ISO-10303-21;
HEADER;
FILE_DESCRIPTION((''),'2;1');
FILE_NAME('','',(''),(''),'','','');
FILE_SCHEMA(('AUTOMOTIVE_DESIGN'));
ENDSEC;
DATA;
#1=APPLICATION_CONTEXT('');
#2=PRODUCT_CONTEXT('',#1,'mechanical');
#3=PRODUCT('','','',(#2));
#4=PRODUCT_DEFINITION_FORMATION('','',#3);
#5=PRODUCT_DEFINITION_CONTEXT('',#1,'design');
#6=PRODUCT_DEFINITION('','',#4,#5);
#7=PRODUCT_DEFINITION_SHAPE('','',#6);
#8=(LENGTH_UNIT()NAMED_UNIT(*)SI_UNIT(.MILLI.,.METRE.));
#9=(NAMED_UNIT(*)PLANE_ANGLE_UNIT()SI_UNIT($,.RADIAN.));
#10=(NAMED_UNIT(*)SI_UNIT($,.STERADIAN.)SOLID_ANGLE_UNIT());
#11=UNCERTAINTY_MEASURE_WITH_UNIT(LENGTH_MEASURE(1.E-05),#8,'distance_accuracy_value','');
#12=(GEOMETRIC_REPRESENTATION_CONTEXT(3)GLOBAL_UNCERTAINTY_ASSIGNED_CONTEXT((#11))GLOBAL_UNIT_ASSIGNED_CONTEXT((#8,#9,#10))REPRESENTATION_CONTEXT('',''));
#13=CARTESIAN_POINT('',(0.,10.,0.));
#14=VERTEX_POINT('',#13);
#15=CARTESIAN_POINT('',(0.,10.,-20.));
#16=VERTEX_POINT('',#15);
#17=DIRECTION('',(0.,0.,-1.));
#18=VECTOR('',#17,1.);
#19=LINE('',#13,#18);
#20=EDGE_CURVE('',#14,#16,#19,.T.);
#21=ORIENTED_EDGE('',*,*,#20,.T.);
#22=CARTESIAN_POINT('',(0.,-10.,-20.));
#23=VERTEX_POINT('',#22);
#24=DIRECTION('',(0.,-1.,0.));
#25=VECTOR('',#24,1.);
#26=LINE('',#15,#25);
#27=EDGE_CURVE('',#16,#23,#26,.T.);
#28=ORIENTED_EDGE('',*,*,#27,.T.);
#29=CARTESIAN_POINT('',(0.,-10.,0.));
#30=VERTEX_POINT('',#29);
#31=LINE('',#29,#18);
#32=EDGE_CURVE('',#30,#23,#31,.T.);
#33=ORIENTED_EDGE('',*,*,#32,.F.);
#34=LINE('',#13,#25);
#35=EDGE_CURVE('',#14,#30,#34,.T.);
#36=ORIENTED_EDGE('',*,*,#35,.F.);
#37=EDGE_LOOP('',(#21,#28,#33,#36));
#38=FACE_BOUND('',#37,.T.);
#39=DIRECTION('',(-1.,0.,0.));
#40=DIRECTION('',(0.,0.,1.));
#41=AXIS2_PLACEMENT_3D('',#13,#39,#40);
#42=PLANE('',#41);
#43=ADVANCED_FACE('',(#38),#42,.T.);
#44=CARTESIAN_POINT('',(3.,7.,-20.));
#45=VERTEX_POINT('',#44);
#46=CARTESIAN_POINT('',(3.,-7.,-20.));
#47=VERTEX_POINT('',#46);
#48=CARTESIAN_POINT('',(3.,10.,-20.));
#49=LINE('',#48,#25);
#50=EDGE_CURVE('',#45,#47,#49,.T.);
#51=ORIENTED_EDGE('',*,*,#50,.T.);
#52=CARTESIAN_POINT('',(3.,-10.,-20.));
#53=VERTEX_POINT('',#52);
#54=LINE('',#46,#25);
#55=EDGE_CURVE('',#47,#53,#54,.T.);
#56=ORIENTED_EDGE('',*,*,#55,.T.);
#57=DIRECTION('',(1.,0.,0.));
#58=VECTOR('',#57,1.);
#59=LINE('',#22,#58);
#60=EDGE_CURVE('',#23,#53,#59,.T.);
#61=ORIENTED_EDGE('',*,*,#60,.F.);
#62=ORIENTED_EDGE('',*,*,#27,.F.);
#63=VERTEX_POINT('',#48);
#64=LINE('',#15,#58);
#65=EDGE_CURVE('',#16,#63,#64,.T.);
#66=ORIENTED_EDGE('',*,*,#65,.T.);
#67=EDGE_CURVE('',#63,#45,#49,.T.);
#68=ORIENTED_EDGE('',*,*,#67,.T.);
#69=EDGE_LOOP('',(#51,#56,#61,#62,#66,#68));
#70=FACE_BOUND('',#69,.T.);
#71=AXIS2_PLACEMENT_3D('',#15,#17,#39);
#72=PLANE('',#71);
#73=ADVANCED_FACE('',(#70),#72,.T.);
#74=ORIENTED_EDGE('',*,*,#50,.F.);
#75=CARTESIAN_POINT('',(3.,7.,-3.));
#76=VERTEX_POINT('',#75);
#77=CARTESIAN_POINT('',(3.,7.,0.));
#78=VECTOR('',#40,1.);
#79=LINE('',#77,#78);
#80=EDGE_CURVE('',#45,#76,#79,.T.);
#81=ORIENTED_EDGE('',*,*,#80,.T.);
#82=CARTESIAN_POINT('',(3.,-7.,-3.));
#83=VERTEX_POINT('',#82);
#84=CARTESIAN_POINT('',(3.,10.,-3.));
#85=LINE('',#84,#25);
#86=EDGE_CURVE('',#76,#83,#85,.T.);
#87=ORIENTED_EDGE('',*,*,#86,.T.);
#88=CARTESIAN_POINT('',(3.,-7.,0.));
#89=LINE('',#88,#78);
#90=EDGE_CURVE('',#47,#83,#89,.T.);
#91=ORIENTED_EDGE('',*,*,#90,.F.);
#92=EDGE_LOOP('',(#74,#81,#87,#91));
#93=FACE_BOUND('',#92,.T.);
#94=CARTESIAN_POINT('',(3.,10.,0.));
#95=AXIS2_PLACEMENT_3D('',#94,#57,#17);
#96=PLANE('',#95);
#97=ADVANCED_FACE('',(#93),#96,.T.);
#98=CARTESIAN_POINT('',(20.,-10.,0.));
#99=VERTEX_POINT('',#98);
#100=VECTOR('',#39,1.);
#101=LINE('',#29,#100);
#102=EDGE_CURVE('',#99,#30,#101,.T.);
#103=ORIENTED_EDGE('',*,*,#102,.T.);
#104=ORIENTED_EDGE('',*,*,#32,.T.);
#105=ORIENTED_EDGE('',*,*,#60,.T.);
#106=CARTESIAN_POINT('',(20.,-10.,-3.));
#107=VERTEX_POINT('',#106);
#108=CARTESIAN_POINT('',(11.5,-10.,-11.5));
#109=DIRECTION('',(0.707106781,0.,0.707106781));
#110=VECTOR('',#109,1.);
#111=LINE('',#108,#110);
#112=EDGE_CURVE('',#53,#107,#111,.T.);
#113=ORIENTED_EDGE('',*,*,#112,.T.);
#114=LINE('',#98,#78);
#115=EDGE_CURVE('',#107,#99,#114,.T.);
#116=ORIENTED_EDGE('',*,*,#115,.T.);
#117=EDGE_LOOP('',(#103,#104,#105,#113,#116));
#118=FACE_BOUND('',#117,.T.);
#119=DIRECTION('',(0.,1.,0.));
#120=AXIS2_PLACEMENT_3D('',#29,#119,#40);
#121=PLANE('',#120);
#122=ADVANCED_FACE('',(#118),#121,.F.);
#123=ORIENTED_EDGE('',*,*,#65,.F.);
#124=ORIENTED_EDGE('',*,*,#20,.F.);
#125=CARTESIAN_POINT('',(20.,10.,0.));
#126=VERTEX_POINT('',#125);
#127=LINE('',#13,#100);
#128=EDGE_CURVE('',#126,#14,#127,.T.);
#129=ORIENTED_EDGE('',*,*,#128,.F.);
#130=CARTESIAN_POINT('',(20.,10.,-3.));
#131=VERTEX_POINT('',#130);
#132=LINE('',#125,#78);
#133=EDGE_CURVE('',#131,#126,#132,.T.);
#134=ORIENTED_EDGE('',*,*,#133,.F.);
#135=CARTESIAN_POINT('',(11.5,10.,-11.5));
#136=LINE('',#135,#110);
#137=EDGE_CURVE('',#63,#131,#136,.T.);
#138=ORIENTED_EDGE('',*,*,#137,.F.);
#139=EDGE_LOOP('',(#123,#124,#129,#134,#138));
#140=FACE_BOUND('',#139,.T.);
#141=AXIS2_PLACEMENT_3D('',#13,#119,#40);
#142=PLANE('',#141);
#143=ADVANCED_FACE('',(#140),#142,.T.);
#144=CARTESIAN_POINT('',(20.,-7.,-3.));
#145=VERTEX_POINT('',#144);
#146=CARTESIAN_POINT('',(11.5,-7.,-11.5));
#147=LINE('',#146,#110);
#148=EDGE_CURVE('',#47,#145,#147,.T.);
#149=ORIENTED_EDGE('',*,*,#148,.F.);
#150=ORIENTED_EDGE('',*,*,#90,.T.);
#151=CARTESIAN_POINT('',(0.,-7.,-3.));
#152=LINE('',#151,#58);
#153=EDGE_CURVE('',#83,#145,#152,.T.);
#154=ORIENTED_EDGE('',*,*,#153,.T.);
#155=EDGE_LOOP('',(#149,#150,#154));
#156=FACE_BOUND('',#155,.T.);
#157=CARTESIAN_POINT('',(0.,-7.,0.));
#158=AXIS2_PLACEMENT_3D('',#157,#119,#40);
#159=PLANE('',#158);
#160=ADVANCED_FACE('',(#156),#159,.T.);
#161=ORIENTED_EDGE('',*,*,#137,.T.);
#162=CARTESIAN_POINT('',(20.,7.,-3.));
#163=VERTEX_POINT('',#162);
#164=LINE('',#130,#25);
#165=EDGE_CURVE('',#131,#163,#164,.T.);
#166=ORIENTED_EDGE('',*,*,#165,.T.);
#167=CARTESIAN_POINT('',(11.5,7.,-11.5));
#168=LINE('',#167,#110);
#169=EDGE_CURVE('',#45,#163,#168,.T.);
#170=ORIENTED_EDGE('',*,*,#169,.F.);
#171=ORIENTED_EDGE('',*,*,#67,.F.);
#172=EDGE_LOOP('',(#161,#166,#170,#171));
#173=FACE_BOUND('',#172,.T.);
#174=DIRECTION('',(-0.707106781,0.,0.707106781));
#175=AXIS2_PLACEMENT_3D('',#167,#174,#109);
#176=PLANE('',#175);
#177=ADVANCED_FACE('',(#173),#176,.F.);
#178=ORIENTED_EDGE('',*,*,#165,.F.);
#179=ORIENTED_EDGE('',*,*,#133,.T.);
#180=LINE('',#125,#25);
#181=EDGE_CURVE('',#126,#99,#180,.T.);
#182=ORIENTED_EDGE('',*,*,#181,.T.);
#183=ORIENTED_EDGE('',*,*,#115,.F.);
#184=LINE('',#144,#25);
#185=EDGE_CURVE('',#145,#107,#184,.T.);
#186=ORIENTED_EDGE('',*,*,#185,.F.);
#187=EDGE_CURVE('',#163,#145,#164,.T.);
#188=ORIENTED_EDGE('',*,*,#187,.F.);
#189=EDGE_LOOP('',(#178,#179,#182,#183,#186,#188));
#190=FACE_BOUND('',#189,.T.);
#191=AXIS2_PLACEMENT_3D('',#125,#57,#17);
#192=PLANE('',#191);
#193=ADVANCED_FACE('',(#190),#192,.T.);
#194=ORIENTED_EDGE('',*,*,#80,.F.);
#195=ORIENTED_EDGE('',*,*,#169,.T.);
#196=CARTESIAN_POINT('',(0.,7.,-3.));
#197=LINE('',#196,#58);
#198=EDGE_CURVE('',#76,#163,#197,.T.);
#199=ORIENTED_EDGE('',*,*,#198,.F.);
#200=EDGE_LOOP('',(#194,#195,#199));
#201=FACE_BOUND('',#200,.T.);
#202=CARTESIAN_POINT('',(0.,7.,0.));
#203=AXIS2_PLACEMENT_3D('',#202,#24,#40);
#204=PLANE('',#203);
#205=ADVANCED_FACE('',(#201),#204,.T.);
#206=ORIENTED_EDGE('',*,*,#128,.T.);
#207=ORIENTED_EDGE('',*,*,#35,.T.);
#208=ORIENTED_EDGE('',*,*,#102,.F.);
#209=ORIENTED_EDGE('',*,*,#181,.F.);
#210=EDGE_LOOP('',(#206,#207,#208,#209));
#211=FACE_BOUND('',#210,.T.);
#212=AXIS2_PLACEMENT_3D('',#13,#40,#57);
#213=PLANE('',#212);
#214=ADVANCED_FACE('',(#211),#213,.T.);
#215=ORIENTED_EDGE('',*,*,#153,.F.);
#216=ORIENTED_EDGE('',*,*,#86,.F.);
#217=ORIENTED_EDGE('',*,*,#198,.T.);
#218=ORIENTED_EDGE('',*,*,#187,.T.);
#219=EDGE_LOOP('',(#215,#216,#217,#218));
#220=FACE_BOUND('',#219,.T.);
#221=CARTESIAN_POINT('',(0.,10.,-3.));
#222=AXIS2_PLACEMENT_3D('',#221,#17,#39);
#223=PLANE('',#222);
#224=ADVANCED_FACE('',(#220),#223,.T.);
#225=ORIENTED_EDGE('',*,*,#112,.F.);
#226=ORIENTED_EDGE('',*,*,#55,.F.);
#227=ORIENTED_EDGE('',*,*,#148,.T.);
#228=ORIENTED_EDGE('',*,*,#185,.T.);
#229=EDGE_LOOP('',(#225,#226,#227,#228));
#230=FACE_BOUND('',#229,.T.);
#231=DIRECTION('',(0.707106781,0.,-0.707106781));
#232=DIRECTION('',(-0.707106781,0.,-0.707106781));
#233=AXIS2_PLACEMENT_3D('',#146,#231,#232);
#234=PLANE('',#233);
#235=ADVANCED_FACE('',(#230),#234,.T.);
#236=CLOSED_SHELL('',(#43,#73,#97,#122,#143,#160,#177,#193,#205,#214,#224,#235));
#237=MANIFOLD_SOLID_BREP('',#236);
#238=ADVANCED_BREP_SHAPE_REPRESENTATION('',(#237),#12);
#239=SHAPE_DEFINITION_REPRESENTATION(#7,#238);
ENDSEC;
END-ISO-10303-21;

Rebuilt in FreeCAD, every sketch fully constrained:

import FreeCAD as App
import Part
import Sketcher

V = App.Vector
Q = App.Units.Quantity

doc = App.newDocument("Part")
body = doc.addObject("PartDesign::Body", "Body")

sketch1 = body.newObject("Sketcher::SketchObject", "Sketch")
sketch1.AttachmentSupport = (doc.getObject("XZ_Plane"), [""])
sketch1.MapMode = "FlatFace"
sketch1.addGeometry([
    Part.LineSegment(V(0, 0, 0), V(20, 0, 0)),
    Part.LineSegment(V(20, 0, 0), V(20, -3, 0)),
    Part.LineSegment(V(20, -3, 0), V(3, -3, 0)),
    Part.LineSegment(V(3, -3, 0), V(3, -20, 0)),
    Part.LineSegment(V(3, -20, 0), V(0, -20, 0)),
    Part.LineSegment(V(0, -20, 0), V(0, 0, 0)),
], False)
sketch1.addConstraint([
    Sketcher.Constraint("Coincident", 0, 2, 1, 1),
    Sketcher.Constraint("Coincident", 1, 2, 2, 1),
    Sketcher.Constraint("Coincident", 2, 2, 3, 1),
    Sketcher.Constraint("Coincident", 3, 2, 4, 1),
    Sketcher.Constraint("Coincident", 4, 2, 5, 1),
    Sketcher.Constraint("Coincident", 5, 2, 0, 1),
    Sketcher.Constraint("Horizontal", 0),
    Sketcher.Constraint("Vertical", 1),
    Sketcher.Constraint("Horizontal", 2),
    Sketcher.Constraint("Vertical", 3),
    Sketcher.Constraint("Horizontal", 4),
    Sketcher.Constraint("Vertical", 5),
    Sketcher.Constraint("Coincident", 5, 2, -1, 1),
    Sketcher.Constraint("Equal", 4, 1),
    Sketcher.Constraint("Equal", 2, 3),
    Sketcher.Constraint("DistanceX", 0, 1, 0, 2, Q("20 mm")),
    Sketcher.Constraint("DistanceX", 2, 2, 2, 1, Q("17 mm")),
])
pad1 = body.newObject("PartDesign::Pad", "Pad")
pad1.Profile = sketch1
pad1.Length = 20
pad1.Midplane = True

sketch2 = body.newObject("Sketcher::SketchObject", "Sketch001")
sketch2.AttachmentSupport = (doc.getObject("XZ_Plane"), [""])
sketch2.MapMode = "FlatFace"
sketch2.AttachmentOffset = App.Placement(V(0, 0, 10), App.Rotation())
sketch2.addGeometry([
    Part.LineSegment(V(20, -3, 0), V(3, -20, 0)),
    Part.LineSegment(V(3, -20, 0), V(3, -3, 0)),
    Part.LineSegment(V(3, -3, 0), V(20, -3, 0)),
], False)
sketch2.addConstraint([
    Sketcher.Constraint("Coincident", 0, 2, 1, 1),
    Sketcher.Constraint("Coincident", 1, 2, 2, 1),
    Sketcher.Constraint("Coincident", 2, 2, 0, 1),
    Sketcher.Constraint("Vertical", 1),
    Sketcher.Constraint("Horizontal", 2),
    Sketcher.Constraint("Equal", 2, 1),
    Sketcher.Constraint("DistanceX", 2, 1, 2, 2, Q("17 mm")),
    Sketcher.Constraint("DistanceX", -1, 1, 0, 2, Q("3 mm")),
    Sketcher.Constraint("DistanceY", 0, 2, -1, 1, Q("20 mm")),
])
pad2 = body.newObject("PartDesign::Pad", "Pad001")
pad2.Profile = sketch2
pad2.Length = 3
pad2.Reversed = True
doc.recompute()

mirrored = body.newObject("PartDesign::Mirrored", "Mirrored")
mirrored.Originals = [pad2]
mirrored.MirrorPlane = (doc.getObject("XZ_Plane"), [""])
body.Tip = mirrored

doc.recompute()
